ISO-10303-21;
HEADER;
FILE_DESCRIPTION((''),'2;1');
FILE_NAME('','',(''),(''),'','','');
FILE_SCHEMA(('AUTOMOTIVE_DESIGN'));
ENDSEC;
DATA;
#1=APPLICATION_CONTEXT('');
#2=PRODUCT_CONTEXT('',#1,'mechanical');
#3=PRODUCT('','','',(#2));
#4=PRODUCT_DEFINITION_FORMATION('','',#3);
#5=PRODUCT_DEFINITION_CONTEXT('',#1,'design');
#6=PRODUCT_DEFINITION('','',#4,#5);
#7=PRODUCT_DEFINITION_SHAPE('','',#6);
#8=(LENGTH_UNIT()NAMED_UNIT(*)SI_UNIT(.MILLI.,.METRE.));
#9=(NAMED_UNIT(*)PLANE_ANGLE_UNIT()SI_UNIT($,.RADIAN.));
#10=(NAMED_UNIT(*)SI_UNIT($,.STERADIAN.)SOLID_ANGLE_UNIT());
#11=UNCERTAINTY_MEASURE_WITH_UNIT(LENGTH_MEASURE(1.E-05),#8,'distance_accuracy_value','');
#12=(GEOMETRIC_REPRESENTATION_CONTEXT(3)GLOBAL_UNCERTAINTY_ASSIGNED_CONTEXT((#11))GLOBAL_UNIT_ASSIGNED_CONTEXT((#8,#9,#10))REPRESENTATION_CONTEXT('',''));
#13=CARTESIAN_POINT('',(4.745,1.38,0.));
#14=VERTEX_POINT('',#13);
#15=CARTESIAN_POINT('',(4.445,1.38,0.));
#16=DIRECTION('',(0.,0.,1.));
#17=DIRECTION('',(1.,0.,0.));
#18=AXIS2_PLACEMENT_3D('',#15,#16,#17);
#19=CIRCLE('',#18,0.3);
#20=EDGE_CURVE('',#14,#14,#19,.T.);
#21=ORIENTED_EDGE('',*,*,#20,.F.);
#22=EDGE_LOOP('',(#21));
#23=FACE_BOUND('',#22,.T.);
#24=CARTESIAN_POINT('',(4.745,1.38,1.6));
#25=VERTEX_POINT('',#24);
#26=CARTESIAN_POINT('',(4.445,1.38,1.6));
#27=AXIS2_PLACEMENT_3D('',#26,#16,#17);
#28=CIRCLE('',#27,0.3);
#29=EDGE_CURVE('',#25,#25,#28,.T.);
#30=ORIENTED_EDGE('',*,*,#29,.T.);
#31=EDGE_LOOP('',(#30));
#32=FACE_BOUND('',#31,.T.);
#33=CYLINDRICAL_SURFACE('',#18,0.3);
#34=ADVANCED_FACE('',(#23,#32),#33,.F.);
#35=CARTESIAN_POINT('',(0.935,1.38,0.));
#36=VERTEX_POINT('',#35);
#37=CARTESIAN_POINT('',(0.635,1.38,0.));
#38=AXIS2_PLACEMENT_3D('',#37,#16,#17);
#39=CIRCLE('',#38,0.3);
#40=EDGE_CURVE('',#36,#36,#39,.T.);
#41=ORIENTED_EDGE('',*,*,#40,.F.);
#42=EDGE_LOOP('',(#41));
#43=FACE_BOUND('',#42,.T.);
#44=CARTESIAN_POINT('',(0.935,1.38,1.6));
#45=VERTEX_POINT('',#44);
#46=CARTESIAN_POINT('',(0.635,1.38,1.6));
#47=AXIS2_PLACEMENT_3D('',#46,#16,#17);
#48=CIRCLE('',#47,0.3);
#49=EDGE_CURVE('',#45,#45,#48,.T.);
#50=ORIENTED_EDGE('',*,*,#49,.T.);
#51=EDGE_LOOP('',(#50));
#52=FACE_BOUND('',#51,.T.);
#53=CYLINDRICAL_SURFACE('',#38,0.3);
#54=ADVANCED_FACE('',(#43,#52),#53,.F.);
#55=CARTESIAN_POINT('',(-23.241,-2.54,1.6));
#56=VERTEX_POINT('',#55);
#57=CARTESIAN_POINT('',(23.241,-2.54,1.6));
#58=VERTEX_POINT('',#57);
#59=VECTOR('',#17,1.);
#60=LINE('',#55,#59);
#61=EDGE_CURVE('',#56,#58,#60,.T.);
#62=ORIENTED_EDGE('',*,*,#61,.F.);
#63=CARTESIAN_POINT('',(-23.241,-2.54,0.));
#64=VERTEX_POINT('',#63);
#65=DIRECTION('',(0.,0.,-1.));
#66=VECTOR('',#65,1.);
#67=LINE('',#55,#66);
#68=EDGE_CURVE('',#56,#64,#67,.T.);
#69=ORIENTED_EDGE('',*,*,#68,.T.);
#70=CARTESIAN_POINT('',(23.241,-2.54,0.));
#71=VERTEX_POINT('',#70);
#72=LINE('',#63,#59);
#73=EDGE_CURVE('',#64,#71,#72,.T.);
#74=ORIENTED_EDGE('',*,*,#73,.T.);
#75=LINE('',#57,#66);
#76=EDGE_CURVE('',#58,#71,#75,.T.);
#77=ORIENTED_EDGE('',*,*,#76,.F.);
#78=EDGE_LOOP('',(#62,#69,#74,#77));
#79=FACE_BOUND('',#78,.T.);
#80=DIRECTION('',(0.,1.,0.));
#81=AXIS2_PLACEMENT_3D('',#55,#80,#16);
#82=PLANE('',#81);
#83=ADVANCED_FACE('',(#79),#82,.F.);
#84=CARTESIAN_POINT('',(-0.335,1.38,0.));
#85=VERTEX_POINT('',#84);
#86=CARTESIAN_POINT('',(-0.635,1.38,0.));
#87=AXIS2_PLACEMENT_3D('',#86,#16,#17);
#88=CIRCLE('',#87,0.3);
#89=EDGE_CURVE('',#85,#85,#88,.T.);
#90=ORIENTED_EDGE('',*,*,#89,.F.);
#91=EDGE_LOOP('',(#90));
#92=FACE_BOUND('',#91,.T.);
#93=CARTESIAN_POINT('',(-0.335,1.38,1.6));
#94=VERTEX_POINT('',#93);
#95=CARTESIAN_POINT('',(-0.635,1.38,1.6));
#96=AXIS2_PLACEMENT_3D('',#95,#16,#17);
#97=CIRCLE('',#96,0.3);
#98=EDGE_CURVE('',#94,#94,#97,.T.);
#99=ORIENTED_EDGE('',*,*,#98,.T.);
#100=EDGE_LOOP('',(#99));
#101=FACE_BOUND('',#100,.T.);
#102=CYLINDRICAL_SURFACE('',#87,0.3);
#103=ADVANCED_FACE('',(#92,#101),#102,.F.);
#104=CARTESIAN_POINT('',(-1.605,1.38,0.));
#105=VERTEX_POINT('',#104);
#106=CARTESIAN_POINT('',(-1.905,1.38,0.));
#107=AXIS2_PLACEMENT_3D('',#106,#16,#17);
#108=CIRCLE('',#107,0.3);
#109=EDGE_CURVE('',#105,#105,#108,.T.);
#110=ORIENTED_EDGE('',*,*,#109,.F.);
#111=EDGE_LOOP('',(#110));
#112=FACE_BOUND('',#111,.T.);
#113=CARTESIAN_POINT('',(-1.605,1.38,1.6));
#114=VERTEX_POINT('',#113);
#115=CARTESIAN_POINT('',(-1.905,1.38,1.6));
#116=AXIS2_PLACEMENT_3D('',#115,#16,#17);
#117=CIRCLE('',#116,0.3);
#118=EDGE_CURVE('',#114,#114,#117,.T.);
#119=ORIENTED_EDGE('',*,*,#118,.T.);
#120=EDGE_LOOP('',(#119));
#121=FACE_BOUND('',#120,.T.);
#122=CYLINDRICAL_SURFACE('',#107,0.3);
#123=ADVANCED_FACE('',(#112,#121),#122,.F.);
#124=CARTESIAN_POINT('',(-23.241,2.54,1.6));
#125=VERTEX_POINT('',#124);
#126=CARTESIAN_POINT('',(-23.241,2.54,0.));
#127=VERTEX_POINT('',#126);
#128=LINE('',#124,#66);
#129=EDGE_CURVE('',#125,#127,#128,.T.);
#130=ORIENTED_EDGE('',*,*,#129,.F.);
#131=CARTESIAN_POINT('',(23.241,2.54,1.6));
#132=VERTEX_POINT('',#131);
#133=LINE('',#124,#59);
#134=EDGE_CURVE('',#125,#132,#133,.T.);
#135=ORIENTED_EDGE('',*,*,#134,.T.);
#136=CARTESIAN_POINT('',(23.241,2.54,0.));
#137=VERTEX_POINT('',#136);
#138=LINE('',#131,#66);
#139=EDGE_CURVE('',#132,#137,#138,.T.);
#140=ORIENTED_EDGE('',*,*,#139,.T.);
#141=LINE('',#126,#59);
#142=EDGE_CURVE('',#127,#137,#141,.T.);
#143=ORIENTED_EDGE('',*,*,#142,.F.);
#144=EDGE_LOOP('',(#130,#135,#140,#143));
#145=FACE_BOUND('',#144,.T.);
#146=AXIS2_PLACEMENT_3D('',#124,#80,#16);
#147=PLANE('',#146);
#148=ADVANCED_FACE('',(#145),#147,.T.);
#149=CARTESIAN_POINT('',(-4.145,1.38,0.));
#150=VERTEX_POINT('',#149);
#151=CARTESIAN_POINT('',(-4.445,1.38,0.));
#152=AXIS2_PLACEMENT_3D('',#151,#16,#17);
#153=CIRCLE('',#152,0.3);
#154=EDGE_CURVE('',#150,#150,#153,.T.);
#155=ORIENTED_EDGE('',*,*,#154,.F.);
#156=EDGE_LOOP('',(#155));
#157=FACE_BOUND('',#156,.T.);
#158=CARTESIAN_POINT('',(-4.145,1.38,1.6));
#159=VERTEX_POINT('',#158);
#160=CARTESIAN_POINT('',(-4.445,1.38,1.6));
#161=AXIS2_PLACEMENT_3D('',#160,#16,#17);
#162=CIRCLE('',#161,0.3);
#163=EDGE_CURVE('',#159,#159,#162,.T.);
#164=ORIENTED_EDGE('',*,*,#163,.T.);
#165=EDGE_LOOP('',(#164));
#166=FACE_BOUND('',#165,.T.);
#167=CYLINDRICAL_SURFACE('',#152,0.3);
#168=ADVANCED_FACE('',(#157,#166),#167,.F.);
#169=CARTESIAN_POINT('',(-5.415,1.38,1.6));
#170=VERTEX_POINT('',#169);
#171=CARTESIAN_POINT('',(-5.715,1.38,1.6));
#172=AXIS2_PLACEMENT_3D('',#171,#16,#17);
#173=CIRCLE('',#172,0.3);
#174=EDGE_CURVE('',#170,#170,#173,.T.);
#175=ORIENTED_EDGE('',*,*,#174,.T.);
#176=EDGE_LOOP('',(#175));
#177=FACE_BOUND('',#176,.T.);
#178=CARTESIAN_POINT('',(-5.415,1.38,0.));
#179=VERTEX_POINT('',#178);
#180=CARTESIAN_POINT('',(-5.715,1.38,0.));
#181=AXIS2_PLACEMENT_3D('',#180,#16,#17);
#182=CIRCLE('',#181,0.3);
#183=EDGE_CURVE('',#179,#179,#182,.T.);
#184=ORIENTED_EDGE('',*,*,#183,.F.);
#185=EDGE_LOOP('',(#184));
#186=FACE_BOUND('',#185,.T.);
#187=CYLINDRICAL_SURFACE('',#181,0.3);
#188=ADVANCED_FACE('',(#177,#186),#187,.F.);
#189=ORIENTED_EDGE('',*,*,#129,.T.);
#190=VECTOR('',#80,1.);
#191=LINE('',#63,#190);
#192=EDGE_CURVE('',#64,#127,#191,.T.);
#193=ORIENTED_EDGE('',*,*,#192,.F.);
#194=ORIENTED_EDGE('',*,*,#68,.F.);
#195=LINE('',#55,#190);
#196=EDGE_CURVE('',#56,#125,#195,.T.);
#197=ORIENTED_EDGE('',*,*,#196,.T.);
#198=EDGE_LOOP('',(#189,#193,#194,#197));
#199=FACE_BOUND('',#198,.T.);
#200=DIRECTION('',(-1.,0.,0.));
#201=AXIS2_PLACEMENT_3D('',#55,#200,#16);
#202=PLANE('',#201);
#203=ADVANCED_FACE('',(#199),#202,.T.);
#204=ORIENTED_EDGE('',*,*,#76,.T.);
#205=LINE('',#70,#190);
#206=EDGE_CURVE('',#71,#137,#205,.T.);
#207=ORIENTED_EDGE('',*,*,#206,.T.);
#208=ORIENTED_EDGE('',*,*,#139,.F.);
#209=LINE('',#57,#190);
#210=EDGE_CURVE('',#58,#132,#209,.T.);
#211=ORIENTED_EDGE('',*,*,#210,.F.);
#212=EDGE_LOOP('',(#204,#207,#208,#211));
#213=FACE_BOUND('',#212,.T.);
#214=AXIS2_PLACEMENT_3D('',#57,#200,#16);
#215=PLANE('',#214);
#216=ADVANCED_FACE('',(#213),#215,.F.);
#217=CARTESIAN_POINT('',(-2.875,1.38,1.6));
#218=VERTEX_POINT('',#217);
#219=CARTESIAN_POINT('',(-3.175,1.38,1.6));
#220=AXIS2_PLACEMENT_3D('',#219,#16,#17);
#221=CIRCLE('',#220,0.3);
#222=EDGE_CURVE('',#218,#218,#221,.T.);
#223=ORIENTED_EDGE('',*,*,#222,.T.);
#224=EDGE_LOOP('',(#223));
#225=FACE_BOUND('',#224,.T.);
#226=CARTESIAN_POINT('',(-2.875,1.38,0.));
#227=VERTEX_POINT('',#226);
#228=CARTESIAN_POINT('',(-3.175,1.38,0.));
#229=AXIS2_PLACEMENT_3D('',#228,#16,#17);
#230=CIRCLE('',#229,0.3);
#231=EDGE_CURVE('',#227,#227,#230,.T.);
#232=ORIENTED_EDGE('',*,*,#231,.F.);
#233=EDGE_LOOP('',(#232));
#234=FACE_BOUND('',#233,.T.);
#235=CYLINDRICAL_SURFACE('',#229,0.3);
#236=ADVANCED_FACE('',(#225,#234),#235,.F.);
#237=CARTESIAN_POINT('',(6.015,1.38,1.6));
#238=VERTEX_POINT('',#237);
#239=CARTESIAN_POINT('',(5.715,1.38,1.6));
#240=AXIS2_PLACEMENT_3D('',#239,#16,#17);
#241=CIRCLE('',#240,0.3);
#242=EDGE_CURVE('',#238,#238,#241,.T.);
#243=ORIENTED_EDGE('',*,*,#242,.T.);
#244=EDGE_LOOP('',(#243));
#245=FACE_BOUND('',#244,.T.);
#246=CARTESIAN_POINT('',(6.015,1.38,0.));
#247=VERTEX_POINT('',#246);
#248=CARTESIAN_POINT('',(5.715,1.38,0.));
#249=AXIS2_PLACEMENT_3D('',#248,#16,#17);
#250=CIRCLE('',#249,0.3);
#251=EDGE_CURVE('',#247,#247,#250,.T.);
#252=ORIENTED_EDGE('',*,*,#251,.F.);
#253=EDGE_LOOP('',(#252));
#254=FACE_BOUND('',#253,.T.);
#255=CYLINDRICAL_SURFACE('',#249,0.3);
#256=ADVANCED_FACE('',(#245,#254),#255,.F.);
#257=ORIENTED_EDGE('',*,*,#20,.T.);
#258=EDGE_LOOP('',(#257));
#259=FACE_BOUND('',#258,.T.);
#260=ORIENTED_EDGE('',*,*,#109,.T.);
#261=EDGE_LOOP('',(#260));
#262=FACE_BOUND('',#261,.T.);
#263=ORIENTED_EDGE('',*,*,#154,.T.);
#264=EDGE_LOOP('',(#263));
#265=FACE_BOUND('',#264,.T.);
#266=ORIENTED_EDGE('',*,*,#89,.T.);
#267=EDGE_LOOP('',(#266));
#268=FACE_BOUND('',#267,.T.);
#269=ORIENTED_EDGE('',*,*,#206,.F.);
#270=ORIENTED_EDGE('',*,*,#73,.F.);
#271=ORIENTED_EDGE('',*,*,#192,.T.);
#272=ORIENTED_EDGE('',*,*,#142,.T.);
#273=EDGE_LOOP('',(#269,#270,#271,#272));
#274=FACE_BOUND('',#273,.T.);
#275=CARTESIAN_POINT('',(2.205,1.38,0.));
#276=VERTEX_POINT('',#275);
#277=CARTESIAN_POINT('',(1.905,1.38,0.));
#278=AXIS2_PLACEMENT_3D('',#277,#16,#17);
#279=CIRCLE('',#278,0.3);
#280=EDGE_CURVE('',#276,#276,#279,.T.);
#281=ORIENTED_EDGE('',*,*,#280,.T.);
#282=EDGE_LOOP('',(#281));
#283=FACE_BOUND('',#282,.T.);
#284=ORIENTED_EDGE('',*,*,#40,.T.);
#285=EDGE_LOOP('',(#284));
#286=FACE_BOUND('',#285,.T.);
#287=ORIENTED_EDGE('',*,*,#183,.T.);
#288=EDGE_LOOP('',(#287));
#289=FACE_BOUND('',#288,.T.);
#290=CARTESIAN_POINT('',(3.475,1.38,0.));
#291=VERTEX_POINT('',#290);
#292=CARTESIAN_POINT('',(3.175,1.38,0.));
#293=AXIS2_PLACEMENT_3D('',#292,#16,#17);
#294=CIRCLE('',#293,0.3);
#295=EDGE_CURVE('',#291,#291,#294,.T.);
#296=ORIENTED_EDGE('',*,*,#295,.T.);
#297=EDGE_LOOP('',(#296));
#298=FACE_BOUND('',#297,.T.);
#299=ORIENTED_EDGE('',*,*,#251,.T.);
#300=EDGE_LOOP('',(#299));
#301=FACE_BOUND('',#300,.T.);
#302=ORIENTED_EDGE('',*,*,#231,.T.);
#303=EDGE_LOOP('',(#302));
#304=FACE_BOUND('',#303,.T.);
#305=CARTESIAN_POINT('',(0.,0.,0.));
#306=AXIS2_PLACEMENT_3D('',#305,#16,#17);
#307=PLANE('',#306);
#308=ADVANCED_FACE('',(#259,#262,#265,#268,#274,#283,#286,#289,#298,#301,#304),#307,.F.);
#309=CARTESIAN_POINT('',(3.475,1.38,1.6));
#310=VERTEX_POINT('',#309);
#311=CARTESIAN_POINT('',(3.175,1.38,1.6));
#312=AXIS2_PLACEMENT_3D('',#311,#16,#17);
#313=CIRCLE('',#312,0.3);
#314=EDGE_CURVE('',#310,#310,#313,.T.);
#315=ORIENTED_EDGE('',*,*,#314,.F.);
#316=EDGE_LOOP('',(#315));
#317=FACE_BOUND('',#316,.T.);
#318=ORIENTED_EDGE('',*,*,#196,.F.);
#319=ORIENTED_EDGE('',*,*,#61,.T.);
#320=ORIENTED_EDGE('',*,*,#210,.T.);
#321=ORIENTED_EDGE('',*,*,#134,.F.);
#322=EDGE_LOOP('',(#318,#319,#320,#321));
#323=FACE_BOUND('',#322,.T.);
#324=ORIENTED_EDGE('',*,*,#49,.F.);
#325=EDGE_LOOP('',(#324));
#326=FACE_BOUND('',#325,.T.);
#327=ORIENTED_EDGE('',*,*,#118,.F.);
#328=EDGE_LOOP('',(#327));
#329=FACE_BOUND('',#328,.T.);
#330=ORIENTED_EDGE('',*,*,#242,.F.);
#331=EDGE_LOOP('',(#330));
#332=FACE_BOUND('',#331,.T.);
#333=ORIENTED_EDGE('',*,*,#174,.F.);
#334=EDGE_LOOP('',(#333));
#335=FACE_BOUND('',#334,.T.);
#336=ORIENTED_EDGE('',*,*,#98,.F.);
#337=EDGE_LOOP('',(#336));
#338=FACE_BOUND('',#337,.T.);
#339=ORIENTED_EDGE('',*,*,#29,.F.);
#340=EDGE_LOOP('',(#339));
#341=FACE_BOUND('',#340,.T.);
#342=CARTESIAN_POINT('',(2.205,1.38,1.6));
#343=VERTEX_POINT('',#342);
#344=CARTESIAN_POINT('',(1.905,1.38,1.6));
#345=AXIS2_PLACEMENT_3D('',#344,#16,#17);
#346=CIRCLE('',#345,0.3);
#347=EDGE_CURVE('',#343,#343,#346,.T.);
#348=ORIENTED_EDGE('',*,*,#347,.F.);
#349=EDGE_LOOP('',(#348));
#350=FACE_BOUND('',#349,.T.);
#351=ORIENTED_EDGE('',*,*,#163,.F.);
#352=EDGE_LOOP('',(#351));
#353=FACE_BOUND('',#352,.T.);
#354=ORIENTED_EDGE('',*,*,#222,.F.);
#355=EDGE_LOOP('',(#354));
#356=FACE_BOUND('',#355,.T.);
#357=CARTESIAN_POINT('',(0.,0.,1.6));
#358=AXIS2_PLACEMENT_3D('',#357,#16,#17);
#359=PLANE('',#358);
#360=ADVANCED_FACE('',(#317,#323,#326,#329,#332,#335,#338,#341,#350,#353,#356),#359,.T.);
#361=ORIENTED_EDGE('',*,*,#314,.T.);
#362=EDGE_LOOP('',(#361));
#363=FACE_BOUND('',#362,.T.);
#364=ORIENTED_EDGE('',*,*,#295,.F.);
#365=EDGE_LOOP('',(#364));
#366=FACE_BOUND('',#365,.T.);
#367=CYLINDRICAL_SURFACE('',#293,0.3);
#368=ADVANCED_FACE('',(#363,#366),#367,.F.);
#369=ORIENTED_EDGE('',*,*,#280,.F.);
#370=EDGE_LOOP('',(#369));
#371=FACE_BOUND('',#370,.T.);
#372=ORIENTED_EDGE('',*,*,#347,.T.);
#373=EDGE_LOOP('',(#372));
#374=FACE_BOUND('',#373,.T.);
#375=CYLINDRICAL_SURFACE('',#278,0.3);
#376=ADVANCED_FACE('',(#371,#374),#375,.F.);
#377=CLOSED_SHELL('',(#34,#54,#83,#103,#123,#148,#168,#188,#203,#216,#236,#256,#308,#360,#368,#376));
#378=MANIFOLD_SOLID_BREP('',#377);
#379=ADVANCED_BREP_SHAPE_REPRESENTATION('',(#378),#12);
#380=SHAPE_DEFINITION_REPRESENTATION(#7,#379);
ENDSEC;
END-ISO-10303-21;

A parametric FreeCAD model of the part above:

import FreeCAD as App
import Part
import Sketcher

V = App.Vector


def add_polygon(sketch, points):
    """Adds a closed chain of lines whose ends are joined by coincident constraints."""
    first, n = sketch.GeometryCount, len(points)
    for a, b in zip(points, points[1:] + points[:1]):
        sketch.addGeometry(Part.LineSegment(App.Vector(*a, 0), App.Vector(*b, 0)), False)
    for i in range(n):
        sketch.addConstraint(Sketcher.Constraint("Coincident", first + i, 2, first + (i + 1) % n, 1))

doc = App.newDocument("Part")
params = doc.addObject("Spreadsheet::Sheet", "Params")
for row, (alias, value) in enumerate([
    ("sketch1_height", "5.08 mm"),
    ("pad1_length", "1.6 mm"),
    ("sketch2_diameter", "0.6 mm"),
], start=1):
    params.set(f"A{row}", alias)
    params.set(f"B{row}", "=" + value)
    params.setAlias(f"B{row}", alias)

body = doc.addObject("PartDesign::Body", "Body")

# Sketch on XY plane
sketch1 = body.newObject("Sketcher::SketchObject", "Sketch")
sketch1.AttachmentSupport = (doc.getObject("XY_Plane"), [""])
sketch1.MapMode = "FlatFace"
add_polygon(sketch1, [(-23, 3), (-23, -3), (23, -3), (23, 3)])  # lines 0-3
sketch1.addConstraint(Sketcher.Constraint("Vertical", 0))
sketch1.addConstraint(Sketcher.Constraint("Horizontal", 1))
sketch1.addConstraint(Sketcher.Constraint("Vertical", 2))
sketch1.addConstraint(Sketcher.Constraint("Horizontal", 3))
sketch1.addConstraint(Sketcher.Constraint("Symmetric", 0, 2, 2, 2, -1, 1))
sketch1.addConstraint(Sketcher.Constraint("DistanceY", 0, 2, 0, 1, 5.08))
sketch1.addConstraint(Sketcher.Constraint("DistanceX", 1, 1, 1, 2, 46.482))
sketch1.setExpression("Constraints[9]", "Params.sketch1_height")
pad1 = body.newObject("PartDesign::Pad", "Pad")
pad1.Profile = sketch1
pad1.setExpression("Length", "Params.pad1_length")

# Sketch on XY plane
sketch2 = body.newObject("Sketcher::SketchObject", "Sketch001")
sketch2.AttachmentSupport = (doc.getObject("XY_Plane"), [""])
sketch2.MapMode = "FlatFace"
sketch2.AttachmentOffset = App.Placement(V(0, 0, 1.6), App.Rotation())
sketch2.addGeometry(Part.Circle(V(-5.71, 1.38, 0), V(0, 0, 1), 0.3), False)
sketch2.addGeometry(Part.Circle(V(-4.45, 1.38, 0), V(0, 0, 1), 0.3), False)
sketch2.addGeometry(Part.Circle(V(-3.17, 1.38, 0), V(0, 0, 1), 0.3), False)
sketch2.addGeometry(Part.Circle(V(-1.91, 1.38, 0), V(0, 0, 1), 0.3), False)
sketch2.addGeometry(Part.Circle(V(-0.64, 1.38, 0), V(0, 0, 1), 0.3), False)
sketch2.addGeometry(Part.Circle(V(0.64, 1.38, 0), V(0, 0, 1), 0.3), False)
sketch2.addGeometry(Part.Circle(V(1.91, 1.38, 0), V(0, 0, 1), 0.3), False)
sketch2.addGeometry(Part.Circle(V(3.17, 1.38, 0), V(0, 0, 1), 0.3), False)
sketch2.addGeometry(Part.Circle(V(4.45, 1.38, 0), V(0, 0, 1), 0.3), False)
sketch2.addGeometry(Part.Circle(V(5.71, 1.38, 0), V(0, 0, 1), 0.3), False)
sketch2.addConstraint(Sketcher.Constraint("Equal", 0, 1))
sketch2.addConstraint(Sketcher.Constraint("Equal", 1, 2))
sketch2.addConstraint(Sketcher.Constraint("Equal", 2, 3))
sketch2.addConstraint(Sketcher.Constraint("Equal", 3, 4))
sketch2.addConstraint(Sketcher.Constraint("Equal", 4, 5))
sketch2.addConstraint(Sketcher.Constraint("Equal", 5, 6))
sketch2.addConstraint(Sketcher.Constraint("Equal", 6, 7))
sketch2.addConstraint(Sketcher.Constraint("Equal", 7, 8))
sketch2.addConstraint(Sketcher.Constraint("Equal", 8, 9))
sketch2.addConstraint(Sketcher.Constraint("Symmetric", 4, 3, 5, 3, -2))
sketch2.addConstraint(Sketcher.Constraint("Symmetric", 3, 3, 6, 3, -2))
sketch2.addConstraint(Sketcher.Constraint("Symmetric", 2, 3, 7, 3, -2))
sketch2.addConstraint(Sketcher.Constraint("Symmetric", 1, 3, 8, 3, -2))
sketch2.addConstraint(Sketcher.Constraint("Symmetric", 0, 3, 9, 3, -2))
sketch2.addConstraint(Sketcher.Constraint("Horizontal", 0, 3, 1, 3))
sketch2.addConstraint(Sketcher.Constraint("Horizontal", 1, 3, 2, 3))
sketch2.addConstraint(Sketcher.Constraint("Horizontal", 2, 3, 3, 3))
sketch2.addConstraint(Sketcher.Constraint("Horizontal", 3, 3, 4, 3))
sketch2.addConstraint(Sketcher.Constraint("Diameter", 0, 0.6))
sketch2.addConstraint(Sketcher.Constraint("DistanceY", -1, 1, 0, 3, 1.38))
sketch2.addConstraint(Sketcher.Constraint("DistanceX", 0, 3, 1, 3, 1.27))
sketch2.addConstraint(Sketcher.Constraint("DistanceX", 1, 3, 2, 3, 1.27))
sketch2.addConstraint(Sketcher.Constraint("DistanceX", 2, 3, 3, 3, 1.27))
sketch2.addConstraint(Sketcher.Constraint("DistanceX", 3, 3, 4, 3, 1.27))
sketch2.addConstraint(Sketcher.Constraint("DistanceX", 4, 3, 5, 3, 1.27))
sketch2.setExpression("Constraints[18]", "Params.sketch2_diameter")
pocket1 = body.newObject("PartDesign::Pocket", "Pocket")
pocket1.Profile = sketch2
pocket1.Type = "ThroughAll"

doc.recompute()
